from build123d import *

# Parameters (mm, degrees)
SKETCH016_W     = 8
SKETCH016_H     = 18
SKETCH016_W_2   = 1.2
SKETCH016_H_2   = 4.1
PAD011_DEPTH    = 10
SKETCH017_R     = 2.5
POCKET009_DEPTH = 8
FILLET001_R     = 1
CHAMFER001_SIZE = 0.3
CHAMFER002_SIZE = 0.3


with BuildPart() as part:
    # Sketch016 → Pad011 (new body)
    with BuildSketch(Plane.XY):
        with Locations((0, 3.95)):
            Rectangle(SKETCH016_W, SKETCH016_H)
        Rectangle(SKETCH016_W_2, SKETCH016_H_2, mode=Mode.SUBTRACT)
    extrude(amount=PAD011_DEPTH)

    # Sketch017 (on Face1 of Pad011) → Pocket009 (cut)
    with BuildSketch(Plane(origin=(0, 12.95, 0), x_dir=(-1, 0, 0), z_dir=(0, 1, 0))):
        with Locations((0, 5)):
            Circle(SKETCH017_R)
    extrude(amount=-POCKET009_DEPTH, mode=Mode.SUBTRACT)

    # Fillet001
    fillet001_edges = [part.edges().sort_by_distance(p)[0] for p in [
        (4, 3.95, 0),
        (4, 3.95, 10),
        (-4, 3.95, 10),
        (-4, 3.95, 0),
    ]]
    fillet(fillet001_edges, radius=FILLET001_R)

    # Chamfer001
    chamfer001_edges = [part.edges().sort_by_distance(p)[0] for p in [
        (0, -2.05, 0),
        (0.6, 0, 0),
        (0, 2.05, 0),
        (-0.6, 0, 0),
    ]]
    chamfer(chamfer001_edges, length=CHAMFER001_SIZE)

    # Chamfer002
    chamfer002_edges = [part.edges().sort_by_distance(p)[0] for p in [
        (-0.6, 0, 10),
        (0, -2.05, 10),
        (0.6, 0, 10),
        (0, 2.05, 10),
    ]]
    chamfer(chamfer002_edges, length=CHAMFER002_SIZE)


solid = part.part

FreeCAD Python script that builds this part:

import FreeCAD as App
import Part
import Sketcher
Q = App.Units.Quantity


def edges_at(feature, points):
    """Names of the edges that pass closest to the given points."""
    edges = feature.Shape.Edges
    near = lambda p: min(range(len(edges)), key=lambda i: edges[i].distToShape(Part.Vertex(*p))[0])
    return sorted({f"Edge{near(p) + 1}" for p in points})


def add_polygon(sketch, points):
    """Adds a closed chain of lines whose ends are joined by coincident constraints."""
    first, n = sketch.GeometryCount, len(points)
    for a, b in zip(points, points[1:] + points[:1]):
        sketch.addGeometry(Part.LineSegment(App.Vector(*a, 0), App.Vector(*b, 0)), False)
    for i in range(n):
        sketch.addConstraint(Sketcher.Constraint("Coincident", first + i, 2, first + (i + 1) % n, 1))

doc = App.newDocument("Part")
body = doc.addObject("PartDesign::Body", "Body")

# Sketch on XY plane
sketch1 = body.newObject("Sketcher::SketchObject", "Sketch")
sketch1.AttachmentSupport = (doc.getObject("XY_Plane"), [""])
sketch1.MapMode = "FlatFace"
add_polygon(sketch1, [(-4, 12.9), (-4, -5), (4, -5), (4, 12.9)])  # lines 0-3
add_polygon(sketch1, [(0.6, -2), (-0.6, -2), (-0.6, 2), (0.6, 2)])  # lines 4-7
sketch1.addConstraint(Sketcher.Constraint("Vertical", 0))
sketch1.addConstraint(Sketcher.Constraint("Horizontal", 1))
sketch1.addConstraint(Sketcher.Constraint("Vertical", 2))
sketch1.addConstraint(Sketcher.Constraint("Horizontal", 3))
sketch1.addConstraint(Sketcher.Constraint("Horizontal", 4))
sketch1.addConstraint(Sketcher.Constraint("Vertical", 5))
sketch1.addConstraint(Sketcher.Constraint("Horizontal", 6))
sketch1.addConstraint(Sketcher.Constraint("Vertical", 7))
sketch1.addConstraint(Sketcher.Constraint("Symmetric", 4, 2, 6, 2, -1, 1))
sketch1.addConstraint(Sketcher.Constraint("DistanceX", 1, 1, 1, 2, Q("8 mm")))
sketch1.addConstraint(Sketcher.Constraint("DistanceY", 0, 2, 0, 1, Q("18 mm")))
sketch1.addConstraint(Sketcher.Constraint("DistanceX", 4, 2, 4, 1, Q("1.2 mm")))
sketch1.addConstraint(Sketcher.Constraint("DistanceY", 5, 1, 5, 2, Q("4.1 mm")))
sketch1.addConstraint(Sketcher.Constraint("DistanceX", 0, 2, -1, 1, Q("4 mm")))
sketch1.addConstraint(Sketcher.Constraint("DistanceY", 0, 2, 4, 2, Q("3 mm")))
pad1 = body.newObject("PartDesign::Pad", "Pad")
pad1.Profile = sketch1
pad1.Length = 10

# Sketch on XZ plane
sketch2 = body.newObject("Sketcher::SketchObject", "Sketch001")
sketch2.AttachmentSupport = (doc.getObject("XZ_Plane"), [""])
sketch2.MapMode = "FlatFace"
sketch2.AttachmentOffset = App.Placement(App.Vector(0, 0, -12.95), App.Rotation())
sketch2.addGeometry(Part.Circle(App.Vector(0, 5, 0), App.Vector(0, 0, 1), 2.5), False)
sketch2.addConstraint(Sketcher.Constraint("PointOnObject", 0, 3, -2))
sketch2.addConstraint(Sketcher.Constraint("Diameter", 0, Q("5 mm")))
sketch2.addConstraint(Sketcher.Constraint("DistanceY", -1, 1, 0, 3, Q("5 mm")))
pocket1 = body.newObject("PartDesign::Pocket", "Pocket")
pocket1.Profile = sketch2
pocket1.Length = 8
pocket1.Reversed = True
doc.recompute()

fillet = body.newObject("PartDesign::Fillet", "Fillet")
fillet.Base = (pocket1, edges_at(pocket1, [
    (4, 3.95, 0),
    (4, 3.95, 10),
    (-4, 3.95, 10),
    (-4, 3.95, 0),
]))
fillet.Radius = 1
doc.recompute()

chamfer = body.newObject("PartDesign::Chamfer", "Chamfer")
chamfer.Base = (fillet, edges_at(fillet, [
    (0, -2.05, 0),
    (0.6, 0, 0),
    (0, 2.05, 0),
    (-0.6, 0, 0),
]))
chamfer.Size = 0.3
doc.recompute()

chamfer2 = body.newObject("PartDesign::Chamfer", "Chamfer001")
chamfer2.Base = (chamfer, edges_at(chamfer, [
    (-0.6, 0, 10),
    (0, -2.05, 10),
    (0.6, 0, 10),
    (0, 2.05, 10),
]))
chamfer2.Size = 0.3

doc.recompute()
